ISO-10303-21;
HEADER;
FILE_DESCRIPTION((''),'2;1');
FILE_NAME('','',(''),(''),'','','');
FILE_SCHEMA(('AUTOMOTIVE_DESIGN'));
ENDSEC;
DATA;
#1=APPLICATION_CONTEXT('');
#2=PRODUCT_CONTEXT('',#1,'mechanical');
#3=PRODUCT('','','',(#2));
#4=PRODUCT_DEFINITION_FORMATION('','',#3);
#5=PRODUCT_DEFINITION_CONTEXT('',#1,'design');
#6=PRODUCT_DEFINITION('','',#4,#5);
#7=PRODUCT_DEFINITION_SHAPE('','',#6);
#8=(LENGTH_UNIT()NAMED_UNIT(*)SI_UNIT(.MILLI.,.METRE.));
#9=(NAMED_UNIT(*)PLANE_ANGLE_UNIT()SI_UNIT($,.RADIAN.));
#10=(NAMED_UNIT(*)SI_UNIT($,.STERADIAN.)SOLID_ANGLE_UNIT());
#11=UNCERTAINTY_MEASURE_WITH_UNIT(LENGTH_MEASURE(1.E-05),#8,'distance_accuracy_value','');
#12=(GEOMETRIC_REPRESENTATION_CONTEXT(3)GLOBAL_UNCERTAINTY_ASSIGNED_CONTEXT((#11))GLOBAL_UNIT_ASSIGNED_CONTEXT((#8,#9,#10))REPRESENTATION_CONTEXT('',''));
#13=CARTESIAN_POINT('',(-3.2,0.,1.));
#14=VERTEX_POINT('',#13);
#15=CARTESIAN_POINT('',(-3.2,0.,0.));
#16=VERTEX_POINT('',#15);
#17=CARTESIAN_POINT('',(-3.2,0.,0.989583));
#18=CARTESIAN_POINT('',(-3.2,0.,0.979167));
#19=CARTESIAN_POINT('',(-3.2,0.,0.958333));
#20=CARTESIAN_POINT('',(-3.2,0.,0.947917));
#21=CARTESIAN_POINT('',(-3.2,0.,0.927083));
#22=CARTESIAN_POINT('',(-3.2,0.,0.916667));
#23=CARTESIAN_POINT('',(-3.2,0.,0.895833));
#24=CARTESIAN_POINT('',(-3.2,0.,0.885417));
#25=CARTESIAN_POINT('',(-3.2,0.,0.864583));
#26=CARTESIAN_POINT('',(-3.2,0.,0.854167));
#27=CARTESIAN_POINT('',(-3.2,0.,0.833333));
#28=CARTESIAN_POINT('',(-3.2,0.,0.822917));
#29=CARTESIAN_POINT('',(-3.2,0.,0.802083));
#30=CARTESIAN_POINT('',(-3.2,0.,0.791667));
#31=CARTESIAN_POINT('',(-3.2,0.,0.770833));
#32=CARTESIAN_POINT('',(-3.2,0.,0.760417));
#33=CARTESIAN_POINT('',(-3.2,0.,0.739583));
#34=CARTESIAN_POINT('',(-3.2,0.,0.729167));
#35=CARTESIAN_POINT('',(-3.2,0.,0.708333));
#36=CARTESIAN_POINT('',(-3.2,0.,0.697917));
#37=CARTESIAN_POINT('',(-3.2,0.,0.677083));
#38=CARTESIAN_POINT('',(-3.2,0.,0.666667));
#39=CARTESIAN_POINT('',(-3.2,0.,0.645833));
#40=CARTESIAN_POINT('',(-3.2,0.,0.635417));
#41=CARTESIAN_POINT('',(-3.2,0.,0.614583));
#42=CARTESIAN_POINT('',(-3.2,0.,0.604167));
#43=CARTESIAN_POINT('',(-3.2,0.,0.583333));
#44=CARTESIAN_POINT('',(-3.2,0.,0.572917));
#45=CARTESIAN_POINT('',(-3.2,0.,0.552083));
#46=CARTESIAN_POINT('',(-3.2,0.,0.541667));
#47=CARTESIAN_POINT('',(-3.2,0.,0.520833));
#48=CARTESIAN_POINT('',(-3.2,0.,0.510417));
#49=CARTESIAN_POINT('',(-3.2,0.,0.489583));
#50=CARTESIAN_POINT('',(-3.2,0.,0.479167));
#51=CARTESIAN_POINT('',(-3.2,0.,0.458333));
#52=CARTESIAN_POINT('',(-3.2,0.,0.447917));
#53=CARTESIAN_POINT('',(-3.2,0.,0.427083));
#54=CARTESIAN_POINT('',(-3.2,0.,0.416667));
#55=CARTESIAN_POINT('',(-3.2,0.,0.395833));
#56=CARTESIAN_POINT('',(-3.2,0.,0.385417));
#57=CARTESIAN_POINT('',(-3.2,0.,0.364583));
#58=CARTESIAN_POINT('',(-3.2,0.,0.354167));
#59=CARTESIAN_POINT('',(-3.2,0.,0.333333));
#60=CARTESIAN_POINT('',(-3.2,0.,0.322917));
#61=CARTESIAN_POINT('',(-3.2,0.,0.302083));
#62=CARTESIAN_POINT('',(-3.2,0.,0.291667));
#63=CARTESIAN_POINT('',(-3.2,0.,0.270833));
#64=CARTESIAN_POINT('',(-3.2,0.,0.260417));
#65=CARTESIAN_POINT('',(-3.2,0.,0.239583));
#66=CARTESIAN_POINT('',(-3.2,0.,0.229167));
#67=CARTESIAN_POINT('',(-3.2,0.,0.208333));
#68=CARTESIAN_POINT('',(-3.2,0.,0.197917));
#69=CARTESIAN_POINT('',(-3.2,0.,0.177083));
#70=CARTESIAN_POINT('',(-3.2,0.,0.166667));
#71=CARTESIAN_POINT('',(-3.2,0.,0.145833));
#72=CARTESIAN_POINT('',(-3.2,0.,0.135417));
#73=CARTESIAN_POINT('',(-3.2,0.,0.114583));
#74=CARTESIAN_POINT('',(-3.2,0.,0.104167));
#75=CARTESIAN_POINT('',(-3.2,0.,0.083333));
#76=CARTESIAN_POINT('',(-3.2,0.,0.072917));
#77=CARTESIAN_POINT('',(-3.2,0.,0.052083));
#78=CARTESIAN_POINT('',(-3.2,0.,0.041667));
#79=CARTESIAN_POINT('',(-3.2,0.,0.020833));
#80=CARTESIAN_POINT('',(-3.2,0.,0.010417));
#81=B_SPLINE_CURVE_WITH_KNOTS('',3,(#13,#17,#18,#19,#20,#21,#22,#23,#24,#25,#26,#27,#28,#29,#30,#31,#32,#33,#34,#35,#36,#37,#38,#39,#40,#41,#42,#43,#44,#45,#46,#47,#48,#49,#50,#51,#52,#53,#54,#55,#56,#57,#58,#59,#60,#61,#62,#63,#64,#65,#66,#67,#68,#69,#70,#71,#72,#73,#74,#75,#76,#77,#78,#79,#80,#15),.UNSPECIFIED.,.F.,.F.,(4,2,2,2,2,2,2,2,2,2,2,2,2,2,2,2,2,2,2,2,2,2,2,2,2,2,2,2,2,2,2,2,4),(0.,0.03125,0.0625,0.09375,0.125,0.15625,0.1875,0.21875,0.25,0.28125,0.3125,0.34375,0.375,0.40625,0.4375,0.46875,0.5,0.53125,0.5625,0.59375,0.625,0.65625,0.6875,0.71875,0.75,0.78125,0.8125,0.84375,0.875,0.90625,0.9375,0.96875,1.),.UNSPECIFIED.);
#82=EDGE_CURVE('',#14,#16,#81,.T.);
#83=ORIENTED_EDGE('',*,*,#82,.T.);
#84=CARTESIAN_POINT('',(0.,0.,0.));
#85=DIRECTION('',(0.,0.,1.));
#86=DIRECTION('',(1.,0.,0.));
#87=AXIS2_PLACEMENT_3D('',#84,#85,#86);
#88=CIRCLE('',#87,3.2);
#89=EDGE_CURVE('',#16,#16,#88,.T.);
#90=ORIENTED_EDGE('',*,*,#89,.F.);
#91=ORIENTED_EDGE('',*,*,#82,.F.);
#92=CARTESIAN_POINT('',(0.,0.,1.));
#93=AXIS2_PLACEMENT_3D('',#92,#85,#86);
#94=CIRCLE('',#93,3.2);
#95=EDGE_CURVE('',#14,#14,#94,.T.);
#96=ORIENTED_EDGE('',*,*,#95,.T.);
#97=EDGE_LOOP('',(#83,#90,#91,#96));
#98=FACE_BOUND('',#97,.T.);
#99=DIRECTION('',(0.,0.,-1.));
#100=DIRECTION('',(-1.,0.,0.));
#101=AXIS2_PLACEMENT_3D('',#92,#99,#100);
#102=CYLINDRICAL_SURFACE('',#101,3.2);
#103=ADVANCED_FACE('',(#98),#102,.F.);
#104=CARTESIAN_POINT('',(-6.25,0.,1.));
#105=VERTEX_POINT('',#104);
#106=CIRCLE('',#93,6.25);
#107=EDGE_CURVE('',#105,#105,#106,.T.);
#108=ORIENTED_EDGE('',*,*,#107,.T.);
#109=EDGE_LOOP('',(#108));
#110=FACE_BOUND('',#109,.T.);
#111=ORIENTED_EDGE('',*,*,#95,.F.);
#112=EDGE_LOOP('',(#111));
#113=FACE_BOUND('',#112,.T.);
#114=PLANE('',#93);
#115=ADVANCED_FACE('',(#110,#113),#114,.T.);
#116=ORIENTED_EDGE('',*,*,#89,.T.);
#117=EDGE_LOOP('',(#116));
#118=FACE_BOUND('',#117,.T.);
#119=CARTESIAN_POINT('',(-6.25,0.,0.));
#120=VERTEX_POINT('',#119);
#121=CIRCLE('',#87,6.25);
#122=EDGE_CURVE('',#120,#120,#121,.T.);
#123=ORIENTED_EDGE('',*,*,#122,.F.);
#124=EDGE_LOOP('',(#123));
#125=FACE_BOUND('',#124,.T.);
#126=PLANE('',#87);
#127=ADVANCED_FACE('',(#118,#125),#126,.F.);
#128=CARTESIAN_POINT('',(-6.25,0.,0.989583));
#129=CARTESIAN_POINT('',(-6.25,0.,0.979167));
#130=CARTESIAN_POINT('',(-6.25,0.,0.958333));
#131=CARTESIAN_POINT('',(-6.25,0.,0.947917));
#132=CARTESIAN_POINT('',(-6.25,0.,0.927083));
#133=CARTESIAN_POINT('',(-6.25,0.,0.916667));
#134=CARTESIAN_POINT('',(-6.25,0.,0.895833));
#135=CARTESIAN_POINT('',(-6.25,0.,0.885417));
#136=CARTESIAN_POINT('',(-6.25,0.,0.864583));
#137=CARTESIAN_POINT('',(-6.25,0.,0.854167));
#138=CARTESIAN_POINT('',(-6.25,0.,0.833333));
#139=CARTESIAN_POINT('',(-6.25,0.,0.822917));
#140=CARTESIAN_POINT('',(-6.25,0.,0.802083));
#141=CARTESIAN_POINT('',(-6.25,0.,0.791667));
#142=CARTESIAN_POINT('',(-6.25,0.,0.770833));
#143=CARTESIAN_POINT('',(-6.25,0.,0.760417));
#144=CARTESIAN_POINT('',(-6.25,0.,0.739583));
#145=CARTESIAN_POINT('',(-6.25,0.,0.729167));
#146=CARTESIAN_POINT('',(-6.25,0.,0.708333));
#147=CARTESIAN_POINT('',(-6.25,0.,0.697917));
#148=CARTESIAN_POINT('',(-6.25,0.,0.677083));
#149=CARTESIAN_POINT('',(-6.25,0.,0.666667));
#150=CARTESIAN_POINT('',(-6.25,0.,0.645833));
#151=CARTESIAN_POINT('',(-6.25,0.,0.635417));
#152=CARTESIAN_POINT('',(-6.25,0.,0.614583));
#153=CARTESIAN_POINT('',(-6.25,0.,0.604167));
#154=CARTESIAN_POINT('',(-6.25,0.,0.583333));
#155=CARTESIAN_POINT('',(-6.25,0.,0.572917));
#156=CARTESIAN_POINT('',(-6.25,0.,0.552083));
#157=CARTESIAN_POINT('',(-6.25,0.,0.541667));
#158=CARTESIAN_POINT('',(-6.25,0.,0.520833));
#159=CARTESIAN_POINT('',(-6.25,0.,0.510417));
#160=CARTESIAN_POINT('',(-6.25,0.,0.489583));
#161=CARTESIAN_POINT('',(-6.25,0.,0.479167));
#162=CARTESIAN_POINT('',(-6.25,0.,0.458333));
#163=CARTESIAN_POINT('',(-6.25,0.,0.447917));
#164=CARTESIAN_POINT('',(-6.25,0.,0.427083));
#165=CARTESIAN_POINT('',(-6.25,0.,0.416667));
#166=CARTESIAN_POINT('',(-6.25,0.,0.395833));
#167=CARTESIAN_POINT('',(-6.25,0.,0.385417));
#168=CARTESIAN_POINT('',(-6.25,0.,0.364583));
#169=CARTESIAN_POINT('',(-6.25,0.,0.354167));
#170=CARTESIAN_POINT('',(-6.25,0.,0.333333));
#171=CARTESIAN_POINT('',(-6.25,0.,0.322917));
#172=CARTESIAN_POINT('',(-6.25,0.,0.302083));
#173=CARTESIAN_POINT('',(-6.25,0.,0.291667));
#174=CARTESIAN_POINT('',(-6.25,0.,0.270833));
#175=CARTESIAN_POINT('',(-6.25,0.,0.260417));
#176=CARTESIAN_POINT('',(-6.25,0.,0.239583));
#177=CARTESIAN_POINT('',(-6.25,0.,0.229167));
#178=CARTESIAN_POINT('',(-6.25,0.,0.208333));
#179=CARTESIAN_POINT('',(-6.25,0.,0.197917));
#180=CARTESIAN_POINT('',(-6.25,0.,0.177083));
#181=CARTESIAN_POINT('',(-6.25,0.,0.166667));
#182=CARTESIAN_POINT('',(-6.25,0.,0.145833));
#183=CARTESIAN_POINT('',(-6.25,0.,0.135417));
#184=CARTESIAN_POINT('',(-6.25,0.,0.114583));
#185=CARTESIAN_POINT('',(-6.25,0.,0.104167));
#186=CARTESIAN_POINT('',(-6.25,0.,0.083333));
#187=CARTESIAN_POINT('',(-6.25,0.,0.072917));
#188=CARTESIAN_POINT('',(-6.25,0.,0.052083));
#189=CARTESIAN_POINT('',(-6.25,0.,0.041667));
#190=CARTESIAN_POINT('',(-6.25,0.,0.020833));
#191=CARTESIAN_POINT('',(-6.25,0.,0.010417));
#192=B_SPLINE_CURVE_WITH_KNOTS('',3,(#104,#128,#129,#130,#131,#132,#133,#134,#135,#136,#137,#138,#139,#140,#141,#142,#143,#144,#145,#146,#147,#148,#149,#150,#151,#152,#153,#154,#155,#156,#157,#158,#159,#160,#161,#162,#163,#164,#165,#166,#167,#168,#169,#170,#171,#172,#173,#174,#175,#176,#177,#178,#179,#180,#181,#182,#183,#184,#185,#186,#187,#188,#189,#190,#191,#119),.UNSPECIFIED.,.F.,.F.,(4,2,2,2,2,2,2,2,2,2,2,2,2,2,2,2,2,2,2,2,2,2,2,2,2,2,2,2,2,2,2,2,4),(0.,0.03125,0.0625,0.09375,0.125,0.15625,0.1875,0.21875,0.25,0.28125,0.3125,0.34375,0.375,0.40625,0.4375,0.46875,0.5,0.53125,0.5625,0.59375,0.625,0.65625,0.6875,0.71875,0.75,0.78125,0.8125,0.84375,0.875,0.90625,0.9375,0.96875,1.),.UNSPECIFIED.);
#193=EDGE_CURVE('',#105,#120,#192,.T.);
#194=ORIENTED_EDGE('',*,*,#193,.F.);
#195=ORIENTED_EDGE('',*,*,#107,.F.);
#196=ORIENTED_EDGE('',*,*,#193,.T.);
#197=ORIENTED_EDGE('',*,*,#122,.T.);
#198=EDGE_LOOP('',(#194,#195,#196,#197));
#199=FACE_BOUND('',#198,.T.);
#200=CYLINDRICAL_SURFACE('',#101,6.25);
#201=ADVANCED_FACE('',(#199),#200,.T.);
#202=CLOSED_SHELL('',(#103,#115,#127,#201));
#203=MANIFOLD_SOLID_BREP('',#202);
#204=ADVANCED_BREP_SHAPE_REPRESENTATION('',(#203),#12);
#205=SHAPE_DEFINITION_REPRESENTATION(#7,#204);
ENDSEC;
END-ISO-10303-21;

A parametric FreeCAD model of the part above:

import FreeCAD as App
import Part
import Sketcher

V = App.Vector

doc = App.newDocument("Part")
params = doc.addObject("Spreadsheet::Sheet", "Params")
for row, (alias, value) in enumerate([
    ("sketch1_diameter", "12.5 mm"),
    ("sketch1_diameter2", "6.4 mm"),
    ("pad1_length", "1 mm"),
], start=1):
    params.set(f"A{row}", alias)
    params.set(f"B{row}", "=" + value)
    params.setAlias(f"B{row}", alias)

body = doc.addObject("PartDesign::Body", "Body")

sketch1 = doc.addObject("Sketcher::SketchObject", "Sketch")
body.addObject(sketch1)
sketch1.AttachmentSupport = (doc.XY_Plane, [""])
sketch1.MapMode = "FlatFace"
sketch1.addGeometry([
    Part.Circle(V(0, 0, 0), V(0, 0, 1), 6.2),
    Part.Circle(V(0, 0, 0), V(0, 0, 1), 3.2),
], False)
sketch1.addConstraint([
    Sketcher.Constraint("Coincident", 0, 3, -1, 1),
    Sketcher.Constraint("Coincident", 1, 3, -1, 1),
    Sketcher.Constraint("Diameter", 0, 12.5),
    Sketcher.Constraint("Diameter", 1, 6.4),
])
sketch1.setExpression("Constraints[2]", "Params.sketch1_diameter")
sketch1.setExpression("Constraints[3]", "Params.sketch1_diameter2")
pad1 = doc.addObject("PartDesign::Pad", "Pad")
body.addObject(pad1)
pad1.Profile = sketch1
pad1.setExpression("Length", "Params.pad1_length")

doc.recompute()
